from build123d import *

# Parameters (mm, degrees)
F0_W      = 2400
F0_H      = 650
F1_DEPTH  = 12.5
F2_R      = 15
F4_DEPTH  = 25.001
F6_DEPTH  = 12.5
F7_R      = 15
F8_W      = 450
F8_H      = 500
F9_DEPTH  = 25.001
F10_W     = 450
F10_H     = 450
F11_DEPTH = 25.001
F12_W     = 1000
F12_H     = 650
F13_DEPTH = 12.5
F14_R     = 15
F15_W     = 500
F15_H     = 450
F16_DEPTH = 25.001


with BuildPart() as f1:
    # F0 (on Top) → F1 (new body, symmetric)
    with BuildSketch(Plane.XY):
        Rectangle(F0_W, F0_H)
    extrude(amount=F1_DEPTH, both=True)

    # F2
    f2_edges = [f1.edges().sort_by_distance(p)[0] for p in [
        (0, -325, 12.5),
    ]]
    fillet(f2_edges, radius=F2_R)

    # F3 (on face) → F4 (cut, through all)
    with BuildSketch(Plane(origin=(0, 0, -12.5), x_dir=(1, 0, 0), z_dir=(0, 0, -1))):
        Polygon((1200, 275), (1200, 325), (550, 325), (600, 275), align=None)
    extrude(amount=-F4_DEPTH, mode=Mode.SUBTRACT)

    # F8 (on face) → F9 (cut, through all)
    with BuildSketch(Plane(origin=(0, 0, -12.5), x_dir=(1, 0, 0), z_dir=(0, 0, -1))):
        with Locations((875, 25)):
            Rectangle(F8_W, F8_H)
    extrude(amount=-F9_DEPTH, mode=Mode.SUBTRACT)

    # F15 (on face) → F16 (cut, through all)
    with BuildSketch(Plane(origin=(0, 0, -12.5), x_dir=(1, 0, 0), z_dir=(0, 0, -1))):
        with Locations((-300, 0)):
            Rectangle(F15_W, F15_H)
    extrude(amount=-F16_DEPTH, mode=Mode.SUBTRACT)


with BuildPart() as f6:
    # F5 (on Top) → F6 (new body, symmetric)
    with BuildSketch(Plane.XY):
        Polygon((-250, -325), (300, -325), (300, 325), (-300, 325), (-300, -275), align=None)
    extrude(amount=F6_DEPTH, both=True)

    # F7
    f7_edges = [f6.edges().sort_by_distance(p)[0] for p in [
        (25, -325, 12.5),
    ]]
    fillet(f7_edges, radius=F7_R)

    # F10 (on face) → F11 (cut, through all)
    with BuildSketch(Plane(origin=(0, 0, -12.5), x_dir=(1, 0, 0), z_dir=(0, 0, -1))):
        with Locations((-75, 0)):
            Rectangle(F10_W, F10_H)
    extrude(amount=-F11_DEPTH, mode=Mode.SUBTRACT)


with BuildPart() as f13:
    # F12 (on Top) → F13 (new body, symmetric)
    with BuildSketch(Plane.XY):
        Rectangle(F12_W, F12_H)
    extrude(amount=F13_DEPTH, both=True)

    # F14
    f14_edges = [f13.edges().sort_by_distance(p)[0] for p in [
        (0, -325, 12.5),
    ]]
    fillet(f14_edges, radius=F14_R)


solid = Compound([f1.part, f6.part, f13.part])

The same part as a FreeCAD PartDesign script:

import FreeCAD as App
import Part
import Sketcher

V = App.Vector
Q = App.Units.Quantity


def edges_at(feature, points):
    """Names of the edges that pass closest to the given points."""
    edges = feature.Shape.Edges
    near = lambda p: min(range(len(edges)), key=lambda i: edges[i].distToShape(Part.Vertex(*p))[0])
    return sorted({f"Edge{near(p) + 1}" for p in points})


def add_polygon(sketch, points):
    """Adds a closed chain of lines whose ends are joined by coincident constraints."""
    first, n = sketch.GeometryCount, len(points)
    for a, b in zip(points, points[1:] + points[:1]):
        sketch.addGeometry(Part.LineSegment(App.Vector(*a, 0), App.Vector(*b, 0)), False)
    for i in range(n):
        sketch.addConstraint(Sketcher.Constraint("Coincident", first + i, 2, first + (i + 1) % n, 1))

doc = App.newDocument("Part")
body = doc.addObject("PartDesign::Body", "Body")

sketch1 = body.newObject("Sketcher::SketchObject", "Sketch")
sketch1.AttachmentSupport = (doc.getObject("XY_Plane"), [""])
sketch1.MapMode = "FlatFace"
add_polygon(sketch1, [(-1200, 325), (-1200, -325), (1200, -325), (1200, 325)])
sketch1.addConstraint(Sketcher.Constraint("Vertical", 0))
sketch1.addConstraint(Sketcher.Constraint("Horizontal", 1))
sketch1.addConstraint(Sketcher.Constraint("Vertical", 2))
sketch1.addConstraint(Sketcher.Constraint("Horizontal", 3))
sketch1.addConstraint(Sketcher.Constraint("Symmetric", 0, 2, 2, 2, -1, 1))
sketch1.addConstraint(Sketcher.Constraint("DistanceX", 1, 1, 1, 2, Q("2400 mm")))
sketch1.addConstraint(Sketcher.Constraint("DistanceY", 0, 2, 0, 1, Q("650 mm")))
pad1 = body.newObject("PartDesign::Pad", "Pad")
pad1.Profile = sketch1
pad1.Length = 25
pad1.Midplane = True
doc.recompute()

fillet = body.newObject("PartDesign::Fillet", "Fillet")
fillet.Base = (pad1, edges_at(pad1, [(0, -325, 12.5)]))
fillet.Radius = 15

sketch2 = body.newObject("Sketcher::SketchObject", "Sketch001")
sketch2.AttachmentSupport = (doc.getObject("XY_Plane"), [""])
sketch2.MapMode = "FlatFace"
sketch2.AttachmentOffset = App.Placement(V(0, 0, -12.5), App.Rotation())
add_polygon(sketch2, [(1200, -275), (1200, -325), (550, -325), (600, -275)])
sketch2.addConstraint(Sketcher.Constraint("Vertical", 0))
sketch2.addConstraint(Sketcher.Constraint("Horizontal", 1))
sketch2.addConstraint(Sketcher.Constraint("Horizontal", 3))
sketch2.addConstraint(Sketcher.Constraint("DistanceX", 1, 2, 1, 1, Q("650 mm")))
sketch2.addConstraint(Sketcher.Constraint("DistanceX", 3, 1, 3, 2, Q("600 mm")))
sketch2.addConstraint(Sketcher.Constraint("DistanceY", 0, 2, 0, 1, Q("50 mm")))
sketch2.addConstraint(Sketcher.Constraint("DistanceX", -1, 1, 0, 2, Q("1200 mm")))
sketch2.addConstraint(Sketcher.Constraint("DistanceY", 0, 2, -1, 1, Q("325 mm")))
pocket1 = body.newObject("PartDesign::Pocket", "Pocket")
pocket1.Profile = sketch2
pocket1.Type = "ThroughAll"
pocket1.Reversed = True

sketch3 = body.newObject("Sketcher::SketchObject", "Sketch002")
sketch3.AttachmentSupport = (doc.getObject("XY_Plane"), [""])
sketch3.MapMode = "FlatFace"
sketch3.AttachmentOffset = App.Placement(V(0, 0, -12.5), App.Rotation())
add_polygon(sketch3, [(650, -275), (650, 225), (1100, 225), (1100, -275)])
sketch3.addConstraint(Sketcher.Constraint("Vertical", 0))
sketch3.addConstraint(Sketcher.Constraint("Horizontal", 1))
sketch3.addConstraint(Sketcher.Constraint("Vertical", 2))
sketch3.addConstraint(Sketcher.Constraint("Horizontal", 3))
sketch3.addConstraint(Sketcher.Constraint("DistanceX", 1, 1, 1, 2, Q("450 mm")))
sketch3.addConstraint(Sketcher.Constraint("DistanceY", 0, 1, 0, 2, Q("500 mm")))
sketch3.addConstraint(Sketcher.Constraint("DistanceX", -1, 1, 0, 2, Q("650 mm")))
sketch3.addConstraint(Sketcher.Constraint("DistanceY", -1, 1, 0, 2, Q("225 mm")))
pocket2 = body.newObject("PartDesign::Pocket", "Pocket001")
pocket2.Profile = sketch3
pocket2.Type = "ThroughAll"
pocket2.Reversed = True

sketch4 = body.newObject("Sketcher::SketchObject", "Sketch003")
sketch4.AttachmentSupport = (doc.getObject("XY_Plane"), [""])
sketch4.MapMode = "FlatFace"
sketch4.AttachmentOffset = App.Placement(V(0, 0, -12.5), App.Rotation())
add_polygon(sketch4, [(-550, -225), (-550, 225), (-50, 225), (-50, -225)])
sketch4.addConstraint(Sketcher.Constraint("Vertical", 0))
sketch4.addConstraint(Sketcher.Constraint("Horizontal", 1))
sketch4.addConstraint(Sketcher.Constraint("Vertical", 2))
sketch4.addConstraint(Sketcher.Constraint("Horizontal", 3))
sketch4.addConstraint(Sketcher.Constraint("DistanceX", 1, 1, 1, 2, Q("500 mm")))
sketch4.addConstraint(Sketcher.Constraint("DistanceY", 0, 1, 0, 2, Q("450 mm")))
sketch4.addConstraint(Sketcher.Constraint("DistanceX", 0, 2, -1, 1, Q("550 mm")))
sketch4.addConstraint(Sketcher.Constraint("DistanceY", -1, 1, 0, 2, Q("225 mm")))
pocket3 = body.newObject("PartDesign::Pocket", "Pocket002")
pocket3.Profile = sketch4
pocket3.Type = "ThroughAll"
pocket3.Reversed = True
body2 = doc.addObject("PartDesign::Body", "Body001")

sketch5 = body2.newObject("Sketcher::SketchObject", "Sketch004")
sketch5.AttachmentSupport = (doc.getObject("XY_Plane001"), [""])
sketch5.MapMode = "FlatFace"
add_polygon(sketch5, [(-250, -325), (300, -325), (300, 325), (-300, 325), (-300, -275)])
sketch5.addConstraint(Sketcher.Constraint("Horizontal", 0))
sketch5.addConstraint(Sketcher.Constraint("Vertical", 1))
sketch5.addConstraint(Sketcher.Constraint("Horizontal", 2))
sketch5.addConstraint(Sketcher.Constraint("Vertical", 3))
sketch5.addConstraint(Sketcher.Constraint("Symmetric", 0, 2, 2, 2, -1, 1))
sketch5.addConstraint(Sketcher.Constraint("Equal", 2, 3))
sketch5.addConstraint(Sketcher.Constraint("DistanceX", 0, 1, 0, 2, Q("550 mm")))
sketch5.addConstraint(Sketcher.Constraint("DistanceX", 2, 2, 2, 1, Q("600 mm")))
sketch5.addConstraint(Sketcher.Constraint("DistanceY", 1, 1, 1, 2, Q("650 mm")))
pad2 = body2.newObject("PartDesign::Pad", "Pad001")
pad2.Profile = sketch5
pad2.Length = 25
pad2.Midplane = True
doc.recompute()

fillet2 = body2.newObject("PartDesign::Fillet", "Fillet001")
fillet2.Base = (pad2, edges_at(pad2, [(25, -325, 12.5)]))
fillet2.Radius = 15

sketch6 = body2.newObject("Sketcher::SketchObject", "Sketch005")
sketch6.AttachmentSupport = (doc.getObject("XY_Plane001"), [""])
sketch6.MapMode = "FlatFace"
sketch6.AttachmentOffset = App.Placement(V(0, 0, -12.5), App.Rotation())
add_polygon(sketch6, [(-300, -225), (-300, 225), (150, 225), (150, -225)])
sketch6.addConstraint(Sketcher.Constraint("Vertical", 0))
sketch6.addConstraint(Sketcher.Constraint("Horizontal", 1))
sketch6.addConstraint(Sketcher.Constraint("Vertical", 2))
sketch6.addConstraint(Sketcher.Constraint("Horizontal", 3))
sketch6.addConstraint(Sketcher.Constraint("Equal", 3, 0))
sketch6.addConstraint(Sketcher.Constraint("DistanceX", 1, 1, 1, 2, Q("450 mm")))
sketch6.addConstraint(Sketcher.Constraint("DistanceX", 0, 2, -1, 1, Q("300 mm")))
sketch6.addConstraint(Sketcher.Constraint("DistanceY", -1, 1, 0, 2, Q("225 mm")))
pocket4 = body2.newObject("PartDesign::Pocket", "Pocket003")
pocket4.Profile = sketch6
pocket4.Type = "ThroughAll"
pocket4.Reversed = True
body3 = doc.addObject("PartDesign::Body", "Body002")

sketch7 = body3.newObject("Sketcher::SketchObject", "Sketch006")
sketch7.AttachmentSupport = (doc.getObject("XY_Plane002"), [""])
sketch7.MapMode = "FlatFace"
add_polygon(sketch7, [(-500, 325), (-500, -325), (500, -325), (500, 325)])
sketch7.addConstraint(Sketcher.Constraint("Vertical", 0))
sketch7.addConstraint(Sketcher.Constraint("Horizontal", 1))
sketch7.addConstraint(Sketcher.Constraint("Vertical", 2))
sketch7.addConstraint(Sketcher.Constraint("Horizontal", 3))
sketch7.addConstraint(Sketcher.Constraint("Symmetric", 0, 2, 2, 2, -1, 1))
sketch7.addConstraint(Sketcher.Constraint("DistanceX", 1, 1, 1, 2, Q("1000 mm")))
sketch7.addConstraint(Sketcher.Constraint("DistanceY", 0, 2, 0, 1, Q("650 mm")))
pad3 = body3.newObject("PartDesign::Pad", "Pad002")
pad3.Profile = sketch7
pad3.Length = 25
pad3.Midplane = True
doc.recompute()

fillet3 = body3.newObject("PartDesign::Fillet", "Fillet002")
fillet3.Base = (pad3, edges_at(pad3, [(0, -325, 12.5)]))
fillet3.Radius = 15

doc.recompute()
